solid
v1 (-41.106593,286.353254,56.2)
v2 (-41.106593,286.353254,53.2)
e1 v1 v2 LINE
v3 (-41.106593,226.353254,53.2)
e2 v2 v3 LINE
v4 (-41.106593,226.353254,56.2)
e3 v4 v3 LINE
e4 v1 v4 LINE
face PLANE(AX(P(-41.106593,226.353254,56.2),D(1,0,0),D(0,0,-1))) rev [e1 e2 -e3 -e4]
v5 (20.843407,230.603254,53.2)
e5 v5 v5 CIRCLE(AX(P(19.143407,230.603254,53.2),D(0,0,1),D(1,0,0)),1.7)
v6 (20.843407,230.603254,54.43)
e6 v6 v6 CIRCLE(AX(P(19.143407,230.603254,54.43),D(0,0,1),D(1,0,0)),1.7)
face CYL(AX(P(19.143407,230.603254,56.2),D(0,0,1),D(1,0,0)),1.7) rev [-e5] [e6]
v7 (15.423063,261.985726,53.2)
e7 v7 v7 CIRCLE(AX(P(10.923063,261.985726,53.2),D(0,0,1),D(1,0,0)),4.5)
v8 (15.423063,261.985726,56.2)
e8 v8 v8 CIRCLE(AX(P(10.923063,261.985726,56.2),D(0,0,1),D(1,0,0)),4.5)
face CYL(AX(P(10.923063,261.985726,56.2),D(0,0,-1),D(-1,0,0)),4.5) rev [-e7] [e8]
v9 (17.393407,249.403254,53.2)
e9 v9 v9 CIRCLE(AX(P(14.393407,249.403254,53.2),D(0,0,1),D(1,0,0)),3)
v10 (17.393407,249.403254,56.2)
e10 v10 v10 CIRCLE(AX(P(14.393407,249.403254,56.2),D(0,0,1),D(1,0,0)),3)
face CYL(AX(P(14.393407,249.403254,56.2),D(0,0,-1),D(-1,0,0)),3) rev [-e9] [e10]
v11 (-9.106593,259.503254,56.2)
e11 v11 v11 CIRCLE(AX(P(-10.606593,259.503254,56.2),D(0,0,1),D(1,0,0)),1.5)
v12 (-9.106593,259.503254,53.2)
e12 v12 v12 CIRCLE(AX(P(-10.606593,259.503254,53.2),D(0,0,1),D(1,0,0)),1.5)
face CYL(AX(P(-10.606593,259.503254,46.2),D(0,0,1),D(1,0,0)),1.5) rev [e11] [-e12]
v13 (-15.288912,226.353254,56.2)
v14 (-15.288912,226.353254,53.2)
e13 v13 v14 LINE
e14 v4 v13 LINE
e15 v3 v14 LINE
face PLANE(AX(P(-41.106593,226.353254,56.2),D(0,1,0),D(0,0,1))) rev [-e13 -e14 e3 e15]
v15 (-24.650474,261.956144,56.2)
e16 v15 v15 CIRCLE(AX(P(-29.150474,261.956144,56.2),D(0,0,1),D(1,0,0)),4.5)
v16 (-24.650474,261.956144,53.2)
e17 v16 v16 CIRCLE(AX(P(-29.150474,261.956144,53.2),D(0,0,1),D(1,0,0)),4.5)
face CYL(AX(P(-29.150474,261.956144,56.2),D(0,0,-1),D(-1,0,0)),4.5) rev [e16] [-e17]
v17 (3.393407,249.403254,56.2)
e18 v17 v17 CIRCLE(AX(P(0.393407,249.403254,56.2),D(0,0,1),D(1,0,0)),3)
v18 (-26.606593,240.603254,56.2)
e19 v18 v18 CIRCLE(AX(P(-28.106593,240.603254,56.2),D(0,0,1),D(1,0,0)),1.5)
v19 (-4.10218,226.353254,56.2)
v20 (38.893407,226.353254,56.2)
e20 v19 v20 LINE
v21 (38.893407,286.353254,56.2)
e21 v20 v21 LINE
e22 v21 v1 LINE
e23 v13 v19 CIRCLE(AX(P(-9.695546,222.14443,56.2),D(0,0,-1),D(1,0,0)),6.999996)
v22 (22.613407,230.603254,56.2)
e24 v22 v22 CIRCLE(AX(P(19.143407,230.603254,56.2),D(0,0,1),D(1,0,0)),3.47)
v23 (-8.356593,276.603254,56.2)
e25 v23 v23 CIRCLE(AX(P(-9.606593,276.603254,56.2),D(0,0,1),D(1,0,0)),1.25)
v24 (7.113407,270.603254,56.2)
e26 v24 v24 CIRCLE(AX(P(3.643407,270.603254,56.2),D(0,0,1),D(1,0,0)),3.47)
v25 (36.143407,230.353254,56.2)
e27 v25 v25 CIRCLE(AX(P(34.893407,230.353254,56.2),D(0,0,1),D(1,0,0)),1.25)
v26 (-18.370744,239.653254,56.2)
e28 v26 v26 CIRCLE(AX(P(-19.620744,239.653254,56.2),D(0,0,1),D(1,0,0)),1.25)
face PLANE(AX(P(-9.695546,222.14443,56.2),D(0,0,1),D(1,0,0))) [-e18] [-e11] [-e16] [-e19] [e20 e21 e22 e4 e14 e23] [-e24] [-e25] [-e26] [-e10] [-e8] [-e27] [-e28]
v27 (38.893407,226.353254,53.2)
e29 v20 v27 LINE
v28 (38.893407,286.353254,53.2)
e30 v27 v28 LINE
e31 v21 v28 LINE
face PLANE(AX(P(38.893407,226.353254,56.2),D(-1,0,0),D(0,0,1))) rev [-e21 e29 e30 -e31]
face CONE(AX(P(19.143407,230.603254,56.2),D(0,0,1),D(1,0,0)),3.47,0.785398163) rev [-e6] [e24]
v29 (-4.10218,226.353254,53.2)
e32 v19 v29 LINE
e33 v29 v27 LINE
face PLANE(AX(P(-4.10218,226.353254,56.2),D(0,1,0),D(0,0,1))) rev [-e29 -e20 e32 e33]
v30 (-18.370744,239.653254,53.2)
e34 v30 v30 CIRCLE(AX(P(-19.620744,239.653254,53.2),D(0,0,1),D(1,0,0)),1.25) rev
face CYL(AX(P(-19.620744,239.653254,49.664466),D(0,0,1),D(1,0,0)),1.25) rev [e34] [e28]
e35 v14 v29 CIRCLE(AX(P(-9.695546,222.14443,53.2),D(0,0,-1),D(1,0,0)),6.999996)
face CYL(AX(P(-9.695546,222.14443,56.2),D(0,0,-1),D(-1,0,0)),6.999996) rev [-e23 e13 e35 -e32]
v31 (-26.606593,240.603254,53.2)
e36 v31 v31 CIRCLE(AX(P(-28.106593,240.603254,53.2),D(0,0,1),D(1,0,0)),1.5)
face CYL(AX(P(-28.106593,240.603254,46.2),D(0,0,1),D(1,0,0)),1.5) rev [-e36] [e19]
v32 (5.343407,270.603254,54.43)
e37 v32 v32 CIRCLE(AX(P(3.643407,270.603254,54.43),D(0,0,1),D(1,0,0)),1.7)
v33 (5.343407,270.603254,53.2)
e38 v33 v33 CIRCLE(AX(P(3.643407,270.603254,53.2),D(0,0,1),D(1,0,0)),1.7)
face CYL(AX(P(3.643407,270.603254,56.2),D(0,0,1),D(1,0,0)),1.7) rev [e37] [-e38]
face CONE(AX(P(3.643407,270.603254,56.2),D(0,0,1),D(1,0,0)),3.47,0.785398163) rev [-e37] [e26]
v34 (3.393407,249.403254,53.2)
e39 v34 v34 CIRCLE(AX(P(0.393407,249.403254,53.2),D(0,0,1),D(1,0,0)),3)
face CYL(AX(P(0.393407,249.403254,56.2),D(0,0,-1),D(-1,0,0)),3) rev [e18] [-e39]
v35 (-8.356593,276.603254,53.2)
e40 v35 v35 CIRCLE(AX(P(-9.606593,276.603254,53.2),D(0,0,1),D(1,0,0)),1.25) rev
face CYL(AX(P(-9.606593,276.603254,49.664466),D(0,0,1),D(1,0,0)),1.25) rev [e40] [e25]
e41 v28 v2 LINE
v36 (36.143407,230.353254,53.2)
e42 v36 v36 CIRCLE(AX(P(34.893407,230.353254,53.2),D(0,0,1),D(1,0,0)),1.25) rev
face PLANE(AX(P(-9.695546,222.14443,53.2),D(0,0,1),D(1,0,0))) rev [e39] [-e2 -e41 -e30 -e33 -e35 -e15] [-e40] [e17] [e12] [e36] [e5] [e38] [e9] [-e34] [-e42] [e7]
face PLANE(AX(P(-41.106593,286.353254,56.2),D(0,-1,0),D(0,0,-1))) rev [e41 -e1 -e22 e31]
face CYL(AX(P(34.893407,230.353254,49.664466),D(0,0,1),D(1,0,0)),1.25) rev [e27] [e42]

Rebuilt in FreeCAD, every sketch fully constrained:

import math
import FreeCAD as App
import Part
import Sketcher
from FreeCAD import Vector
Q = App.Units.Quantity


def add_polygon(sketch, points):
    """Adds a closed chain of lines whose ends are joined by coincident constraints."""
    first, n = sketch.GeometryCount, len(points)
    for a, b in zip(points, points[1:] + points[:1]):
        sketch.addGeometry(Part.LineSegment(App.Vector(*a, 0), App.Vector(*b, 0)), False)
    for i in range(n):
        sketch.addConstraint(Sketcher.Constraint("Coincident", first + i, 2, first + (i + 1) % n, 1))

doc = App.newDocument("Part")
body = doc.addObject("PartDesign::Body", "Body")

# Sketch on XY plane
sketch1 = body.newObject("Sketcher::SketchObject", "Sketch")
sketch1.AttachmentSupport = (doc.getObject("XY_Plane"), [""])
sketch1.MapMode = "FlatFace"
sketch1.AttachmentOffset = App.Placement(Vector(0, 0, 53.2), App.Rotation())
sketch1.addGeometry(Part.LineSegment(Vector(-4.1, 226.4, 0), Vector(38.9, 226.4, 0)), False)
sketch1.addGeometry(Part.LineSegment(Vector(38.9, 226.4, 0), Vector(38.9, 286.4, 0)), False)
sketch1.addGeometry(Part.LineSegment(Vector(38.9, 286.4, 0), Vector(-41.1, 286.4, 0)), False)
sketch1.addGeometry(Part.LineSegment(Vector(-41.1, 286.4, 0), Vector(-41.1, 226.4, 0)), False)
sketch1.addGeometry(Part.LineSegment(Vector(-41.1, 226.4, 0), Vector(-15.3, 226.4, 0)), False)
sketch1.addGeometry(Part.ArcOfCircle(Part.Circle(Vector(-9.7, 222.1, 0), Vector(0, 0, 1), 7), math.radians(37), math.radians(143)), False)
sketch1.addGeometry(Part.Circle(Vector(0.4, 249.4, 0), Vector(0, 0, 1), 3), False)
sketch1.addGeometry(Part.Circle(Vector(14.4, 249.4, 0), Vector(0, 0, 1), 3), False)
sketch1.addGeometry(Part.Circle(Vector(-29.2, 262, 0), Vector(0, 0, 1), 4.5), False)
sketch1.addGeometry(Part.Circle(Vector(10.9, 262, 0), Vector(0, 0, 1), 4.5), False)
sketch1.addConstraint(Sketcher.Constraint("Coincident", 0, 2, 1, 1))
sketch1.addConstraint(Sketcher.Constraint("Coincident", 1, 2, 2, 1))
sketch1.addConstraint(Sketcher.Constraint("Coincident", 2, 2, 3, 1))
sketch1.addConstraint(Sketcher.Constraint("Coincident", 3, 2, 4, 1))
sketch1.addConstraint(Sketcher.Constraint("Coincident", 4, 2, 5, 2))
sketch1.addConstraint(Sketcher.Constraint("Coincident", 5, 1, 0, 1))
sketch1.addConstraint(Sketcher.Constraint("Horizontal", 0))
sketch1.addConstraint(Sketcher.Constraint("Vertical", 1))
sketch1.addConstraint(Sketcher.Constraint("Horizontal", 2))
sketch1.addConstraint(Sketcher.Constraint("Vertical", 3))
sketch1.addConstraint(Sketcher.Constraint("Horizontal", 4))
sketch1.addConstraint(Sketcher.Constraint("Equal", 6, 7))
sketch1.addConstraint(Sketcher.Constraint("Equal", 8, 9))
sketch1.addConstraint(Sketcher.Constraint("Horizontal", 6, 3, 7, 3))
sketch1.addConstraint(Sketcher.Constraint("Horizontal", 0, 2, 3, 2))
sketch1.addConstraint(Sketcher.Constraint("Diameter", 6, 6.0))
sketch1.addConstraint(Sketcher.Constraint("Diameter", 8, 9.0))
sketch1.addConstraint(Sketcher.Constraint("DistanceX", 2, 2, 2, 1, 80.0))
sketch1.addConstraint(Sketcher.Constraint("DistanceY", 1, 1, 1, 2, 60.0))
sketch1.addConstraint(Sketcher.Constraint("DistanceX", 6, 3, 7, 3, 14.0))
sketch1.addConstraint(Sketcher.Constraint("DistanceX", 7, 3, 0, 2, 24.5))
sketch1.addConstraint(Sketcher.Constraint("DistanceY", 0, 2, 7, 3, 23.05))
sketch1.addConstraint(Sketcher.Constraint("Radius", 5, 6.999996))
sketch1.addConstraint(Sketcher.Constraint("DistanceX", 4, 1, 4, 2, 25.817681))
sketch1.addConstraint(Sketcher.Constraint("DistanceX", 0, 1, 0, 2, 42.995588))
sketch1.addConstraint(Sketcher.Constraint("DistanceY", -1, 1, 5, 3, 222.14443))
sketch1.addConstraint(Sketcher.Constraint("DistanceX", 4, 2, -1, 1, 15.288912))
sketch1.addConstraint(Sketcher.Constraint("DistanceX", 8, 3, 6, 3, 29.543881))
sketch1.addConstraint(Sketcher.Constraint("DistanceY", 6, 3, 8, 3, 12.552889))
sketch1.addConstraint(Sketcher.Constraint("DistanceY", 7, 3, 9, 3, 12.582472))
sketch1.addConstraint(Sketcher.Constraint("DistanceX", 5, 3, 9, 3, 20.618609))
pad1 = body.newObject("PartDesign::Pad", "Pad")
pad1.Profile = sketch1
pad1.Length = 3

# Sketch on YZ plane
sketch2 = body.newObject("Sketcher::SketchObject", "Sketch001")
sketch2.AttachmentSupport = (doc.getObject("YZ_Plane"), [""])
sketch2.MapMode = "FlatFace"
sketch2.AttachmentOffset = App.Placement(Vector(0, 0, 3.643407), App.Rotation())
add_polygon(sketch2, [(270.6, 53.2), (270.6, 56.2), (267.1, 56.2), (268.9, 54.4), (268.9, 53.2)])  # lines 0-4
sketch2.addGeometry(Part.LineSegment(Vector(270.6, 56.2, 0), Vector(270.6, 53.2, 0)), True)  # axis
sketch2.addConstraint(Sketcher.Constraint("Vertical", 0))
sketch2.addConstraint(Sketcher.Constraint("Horizontal", 1))
sketch2.addConstraint(Sketcher.Constraint("Vertical", 3))
sketch2.addConstraint(Sketcher.Constraint("Horizontal", 4))
sketch2.addConstraint(Sketcher.Constraint("Vertical", 5))
sketch2.addConstraint(Sketcher.Constraint("Coincident", 5, 1, 0, 2))
sketch2.addConstraint(Sketcher.Constraint("Horizontal", 3, 2, 5, 2))
sketch2.addConstraint(Sketcher.Constraint("DistanceY", 0, 1, 0, 2, 3.0))
sketch2.addConstraint(Sketcher.Constraint("Angle", 2, Q("-45 deg")))
sketch2.addConstraint(Sketcher.Constraint("DistanceX", 4, 1, 4, 2, 1.7))
sketch2.addConstraint(Sketcher.Constraint("DistanceX", 1, 2, 1, 1, 3.47))
sketch2.addConstraint(Sketcher.Constraint("DistanceY", -1, 1, 0, 2, 56.2))
sketch2.addConstraint(Sketcher.Constraint("DistanceX", -1, 1, 0, 2, 270.603254))
groove = body.newObject("PartDesign::Groove", "Groove")
groove.Profile = sketch2
groove.ReferenceAxis = (sketch2, ["Axis0"])
groove.Angle = 360
doc.recompute()

datumline = body.newObject("PartDesign::Line", "DatumLine")
datumline.Placement = App.Placement(Vector(0, 0, 0), App.Rotation(Vector(0, 0, 1), Vector(0.361321068, -0.932441465, 0)))
linearpattern = body.newObject("PartDesign::LinearPattern", "LinearPattern")
linearpattern.Originals = [groove]
linearpattern.Direction = (datumline, [""])
linearpattern.Mode = "offset"
linearpattern.Offset = 42.898135
linearpattern.Occurrences = 2
body.Tip = linearpattern

# Sketch on XY plane
sketch3 = body.newObject("Sketcher::SketchObject", "Sketch002")
sketch3.AttachmentSupport = (doc.getObject("XY_Plane"), [""])
sketch3.MapMode = "FlatFace"
sketch3.AttachmentOffset = App.Placement(Vector(0, 0, 56.2), App.Rotation())
sketch3.addGeometry(Part.Circle(Vector(-28.1, 240.6, 0), Vector(0, 0, 1), 1.5), False)
sketch3.addGeometry(Part.Circle(Vector(-10.6, 259.5, 0), Vector(0, 0, 1), 1.5), False)
sketch3.addGeometry(Part.Circle(Vector(3.6, 270.6, 0), Vector(0, 0, 1), 1.2), False)
sketch3.addGeometry(Part.Circle(Vector(19.1, 230.6, 0), Vector(0, 0, 1), 1.2), False)
sketch3.addConstraint(Sketcher.Constraint("Equal", 0, 1))
sketch3.addConstraint(Sketcher.Constraint("Equal", 2, 3))
sketch3.addConstraint(Sketcher.Constraint("Diameter", 0, 3.0))
sketch3.addConstraint(Sketcher.Constraint("Diameter", 2, 2.5))
sketch3.addConstraint(Sketcher.Constraint("DistanceY", 0, 3, 2, 3, 30.0))
sketch3.addConstraint(Sketcher.Constraint("DistanceY", 3, 3, 2, 3, 40.0))
sketch3.addConstraint(Sketcher.Constraint("DistanceX", 0, 3, 1, 3, 17.5))
sketch3.addConstraint(Sketcher.Constraint("DistanceY", 0, 3, 1, 3, 18.9))
sketch3.addConstraint(Sketcher.Constraint("DistanceX", 2, 3, 3, 3, 15.5))
sketch3.addConstraint(Sketcher.Constraint("DistanceX", 1, 3, 2, 3, 14.25))
sketch3.addConstraint(Sketcher.Constraint("DistanceX", 0, 3, -1, 1, 28.106593))
sketch3.addConstraint(Sketcher.Constraint("DistanceY", -1, 1, 0, 3, 240.603254))
pocket1 = body.newObject("PartDesign::Pocket", "Pocket")
pocket1.Profile = sketch3
pocket1.Length = 10

# Sketch on XY plane
sketch4 = body.newObject("Sketcher::SketchObject", "Sketch003")
sketch4.AttachmentSupport = (doc.getObject("XY_Plane"), [""])
sketch4.MapMode = "FlatFace"
sketch4.AttachmentOffset = App.Placement(Vector(0, 0, 56.2), App.Rotation())
sketch4.addGeometry(Part.Circle(Vector(-9.6, 276.6, 0), Vector(0, 0, 1), 1.2), False)
sketch4.addGeometry(Part.Circle(Vector(-19.6, 239.7, 0), Vector(0, 0, 1), 1.2), False)
sketch4.addGeometry(Part.Circle(Vector(34.9, 230.4, 0), Vector(0, 0, 1), 1.2), False)
sketch4.addConstraint(Sketcher.Constraint("Equal", 0, 1))
sketch4.addConstraint(Sketcher.Constraint("Equal", 1, 2))
sketch4.addConstraint(Sketcher.Constraint("Diameter", 0, 2.5))
sketch4.addConstraint(Sketcher.Constraint("DistanceY", 2, 3, 1, 3, 9.3))
sketch4.addConstraint(Sketcher.Constraint("DistanceX", 0, 3, 2, 3, 44.5))
sketch4.addConstraint(Sketcher.Constraint("DistanceY", 1, 3, 0, 3, 36.95))
sketch4.addConstraint(Sketcher.Constraint("DistanceX", 1, 3, 0, 3, 10.014151))
sketch4.addConstraint(Sketcher.Constraint("DistanceX", 0, 3, -1, 1, 9.606593))
sketch4.addConstraint(Sketcher.Constraint("DistanceY", -1, 1, 0, 3, 276.603254))
pocket2 = body.newObject("PartDesign::Pocket", "Pocket001")
pocket2.Profile = sketch4
pocket2.Length = 3

doc.recompute()
